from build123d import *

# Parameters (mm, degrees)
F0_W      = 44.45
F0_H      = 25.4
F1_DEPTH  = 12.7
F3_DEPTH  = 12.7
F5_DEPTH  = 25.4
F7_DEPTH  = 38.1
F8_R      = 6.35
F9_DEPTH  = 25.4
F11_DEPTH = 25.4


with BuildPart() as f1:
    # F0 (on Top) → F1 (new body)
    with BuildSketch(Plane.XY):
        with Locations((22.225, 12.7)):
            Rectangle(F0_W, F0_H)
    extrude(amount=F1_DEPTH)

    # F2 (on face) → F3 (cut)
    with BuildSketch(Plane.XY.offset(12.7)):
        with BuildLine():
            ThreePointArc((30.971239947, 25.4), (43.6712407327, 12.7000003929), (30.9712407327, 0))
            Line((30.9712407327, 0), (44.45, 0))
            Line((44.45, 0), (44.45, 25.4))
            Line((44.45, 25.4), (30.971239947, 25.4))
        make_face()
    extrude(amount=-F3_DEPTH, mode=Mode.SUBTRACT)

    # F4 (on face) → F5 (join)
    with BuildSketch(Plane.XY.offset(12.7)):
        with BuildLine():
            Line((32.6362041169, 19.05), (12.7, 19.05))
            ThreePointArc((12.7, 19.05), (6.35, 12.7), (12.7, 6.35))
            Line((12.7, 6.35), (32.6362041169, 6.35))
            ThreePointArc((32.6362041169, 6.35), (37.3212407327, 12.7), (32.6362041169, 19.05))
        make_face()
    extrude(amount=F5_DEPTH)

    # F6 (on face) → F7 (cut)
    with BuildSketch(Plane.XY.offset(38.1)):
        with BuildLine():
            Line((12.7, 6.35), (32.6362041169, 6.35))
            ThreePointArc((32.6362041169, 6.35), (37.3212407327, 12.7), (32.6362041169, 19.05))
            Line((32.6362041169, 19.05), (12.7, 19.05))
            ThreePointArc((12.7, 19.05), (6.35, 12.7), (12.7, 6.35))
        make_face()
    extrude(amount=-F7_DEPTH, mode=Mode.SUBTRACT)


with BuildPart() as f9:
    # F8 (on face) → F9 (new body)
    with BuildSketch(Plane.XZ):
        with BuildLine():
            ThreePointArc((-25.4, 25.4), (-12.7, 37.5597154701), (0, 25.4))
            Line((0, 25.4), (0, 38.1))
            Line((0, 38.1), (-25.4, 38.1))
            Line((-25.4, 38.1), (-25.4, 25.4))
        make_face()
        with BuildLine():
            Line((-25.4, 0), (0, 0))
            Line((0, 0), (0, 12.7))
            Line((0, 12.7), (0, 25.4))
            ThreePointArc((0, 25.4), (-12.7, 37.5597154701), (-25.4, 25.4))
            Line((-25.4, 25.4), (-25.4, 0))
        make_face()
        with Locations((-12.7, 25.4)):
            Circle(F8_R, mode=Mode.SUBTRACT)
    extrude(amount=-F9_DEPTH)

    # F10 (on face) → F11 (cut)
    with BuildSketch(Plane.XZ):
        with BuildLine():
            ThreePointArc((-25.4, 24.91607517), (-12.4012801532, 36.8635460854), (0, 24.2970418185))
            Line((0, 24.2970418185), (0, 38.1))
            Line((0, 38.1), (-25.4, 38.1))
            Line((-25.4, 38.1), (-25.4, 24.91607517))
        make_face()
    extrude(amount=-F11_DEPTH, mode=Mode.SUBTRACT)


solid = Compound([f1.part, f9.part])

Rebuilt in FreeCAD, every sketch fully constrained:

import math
import FreeCAD as App
import Part
import Sketcher
Q = App.Units.Quantity


def add_polygon(sketch, points):
    """Adds a closed chain of lines whose ends are joined by coincident constraints."""
    first, n = sketch.GeometryCount, len(points)
    for a, b in zip(points, points[1:] + points[:1]):
        sketch.addGeometry(Part.LineSegment(App.Vector(*a, 0), App.Vector(*b, 0)), False)
    for i in range(n):
        sketch.addConstraint(Sketcher.Constraint("Coincident", first + i, 2, first + (i + 1) % n, 1))

doc = App.newDocument("Part")
params = doc.addObject("Spreadsheet::Sheet", "Params")
for row, (alias, value) in enumerate([
    ("sketch1_height", "1 in"),
    ("sketch1_width", "1.75 in"),
    ("pad1_length", "0.5 in"),
    ("sketch2_radius", "0.5 in"),
    ("pocket1_length", "0.5 in"),
    ("sketch3_radius", "0.25 in"),
    ("pad2_length", "1 in"),
    ("sketch4_radius", "0.25 in"),
    ("pocket2_length", "1.5 in"),
    ("sketch5_diameter", "0.5 in"),
    ("sketch5_width", "1 in"),
    ("sketch5_height", "1.5 in"),
    ("pad3_length", "1 in"),
    ("sketch6_width", "1 in"),
    ("pocket3_length", "1 in"),
], start=1):
    params.set(f"A{row}", alias)
    params.set(f"B{row}", "=" + value)
    params.setAlias(f"B{row}", alias)

body = doc.addObject("PartDesign::Body", "Body")

# Sketch on XY plane
sketch1 = body.newObject("Sketcher::SketchObject", "Sketch")
sketch1.AttachmentSupport = (doc.getObject("XY_Plane"), [""])
sketch1.MapMode = "FlatFace"
add_polygon(sketch1, [(0, 25), (0, 0), (44, 0), (44, 25)])  # lines 0-3
sketch1.addConstraint(Sketcher.Constraint("Vertical", 0))
sketch1.addConstraint(Sketcher.Constraint("Horizontal", 1))
sketch1.addConstraint(Sketcher.Constraint("Vertical", 2))
sketch1.addConstraint(Sketcher.Constraint("Horizontal", 3))
sketch1.addConstraint(Sketcher.Constraint("Coincident", 0, 2, -1, 1))
sketch1.addConstraint(Sketcher.Constraint("DistanceY", 0, 2, 0, 1, Q("1 in")))
sketch1.addConstraint(Sketcher.Constraint("DistanceX", 1, 1, 1, 2, Q("1.75 in")))
sketch1.setExpression("Constraints[9]", "Params.sketch1_height")
sketch1.setExpression("Constraints[10]", "Params.sketch1_width")
pad1 = body.newObject("PartDesign::Pad", "Pad")
pad1.Profile = sketch1
pad1.setExpression("Length", "Params.pad1_length")

# Sketch on XY plane
sketch2 = body.newObject("Sketcher::SketchObject", "Sketch001")
sketch2.AttachmentSupport = (doc.getObject("XY_Plane"), [""])
sketch2.MapMode = "FlatFace"
sketch2.AttachmentOffset = App.Placement(App.Vector(0, 0, 0.5 * 25.4), App.Rotation())
sketch2.addGeometry(Part.ArcOfCircle(Part.Circle(App.Vector(31, 13, 0), App.Vector(0, 0, 1), 13), math.radians(-90), math.radians(90)), False)
sketch2.addGeometry(Part.LineSegment(App.Vector(31, 0, 0), App.Vector(44, 0, 0)), False)
sketch2.addGeometry(Part.LineSegment(App.Vector(44, 0, 0), App.Vector(44, 25, 0)), False)
sketch2.addGeometry(Part.LineSegment(App.Vector(44, 25, 0), App.Vector(31, 25, 0)), False)
sketch2.addConstraint(Sketcher.Constraint("Tangent", 0, 1, 1, 1))
sketch2.addConstraint(Sketcher.Constraint("Coincident", 1, 2, 2, 1))
sketch2.addConstraint(Sketcher.Constraint("Coincident", 2, 2, 3, 1))
sketch2.addConstraint(Sketcher.Constraint("Tangent", 3, 2, 0, 2))
sketch2.addConstraint(Sketcher.Constraint("Horizontal", 1))
sketch2.addConstraint(Sketcher.Constraint("Vertical", 2))
sketch2.addConstraint(Sketcher.Constraint("Horizontal", 3))
sketch2.addConstraint(Sketcher.Constraint("PointOnObject", 0, 1, -1))
sketch2.addConstraint(Sketcher.Constraint("Radius", 0, Q("0.5 in")))
sketch2.addConstraint(Sketcher.Constraint("DistanceX", -1, 1, 1, 2, Q("1.75 in")))
sketch2.addConstraint(Sketcher.Constraint("DistanceX", 1, 1, 1, 2, 13.478759))
sketch2.setExpression("Constraints[8]", "Params.sketch2_radius")
pocket1 = body.newObject("PartDesign::Pocket", "Pocket")
pocket1.Profile = sketch2
pocket1.setExpression("Length", "Params.pocket1_length")

# Sketch on XY plane
sketch3 = body.newObject("Sketcher::SketchObject", "Sketch002")
sketch3.AttachmentSupport = (doc.getObject("XY_Plane"), [""])
sketch3.MapMode = "FlatFace"
sketch3.AttachmentOffset = App.Placement(App.Vector(0, 0, 0.5 * 25.4), App.Rotation())
sketch3.addGeometry(Part.LineSegment(App.Vector(33, 19, 0), App.Vector(13, 19, 0)), False)
sketch3.addGeometry(Part.ArcOfCircle(Part.Circle(App.Vector(13, 13, 0), App.Vector(0, 0, 1), 6), math.radians(90), math.radians(270)), False)
sketch3.addGeometry(Part.LineSegment(App.Vector(13, 6, 0), App.Vector(33, 6, 0)), False)
sketch3.addGeometry(Part.ArcOfCircle(Part.Circle(App.Vector(31, 13, 0), App.Vector(0, 0, 1), 7), math.radians(-73), math.radians(73)), False)
sketch3.addConstraint(Sketcher.Constraint("Tangent", 0, 2, 1, 1))
sketch3.addConstraint(Sketcher.Constraint("Tangent", 1, 2, 2, 1))
sketch3.addConstraint(Sketcher.Constraint("Coincident", 2, 2, 3, 1))
sketch3.addConstraint(Sketcher.Constraint("Coincident", 3, 2, 0, 1))
sketch3.addConstraint(Sketcher.Constraint("Horizontal", 0))
sketch3.addConstraint(Sketcher.Constraint("Horizontal", 2))
sketch3.addConstraint(Sketcher.Constraint("Horizontal", 1, 3, 3, 3))
sketch3.addConstraint(Sketcher.Constraint("Radius", 1, Q("0.25 in")))
sketch3.addConstraint(Sketcher.Constraint("DistanceX", -1, 1, 1, 3, Q("0.5 in")))
sketch3.addConstraint(Sketcher.Constraint("DistanceY", -1, 1, 1, 3, Q("0.5 in")))
sketch3.addConstraint(Sketcher.Constraint("Radius", 3, 6.645846))
sketch3.addConstraint(Sketcher.Constraint("DistanceX", 0, 2, 0, 1, 19.936204))
sketch3.setExpression("Constraints[7]", "Params.sketch3_radius")
pad2 = body.newObject("PartDesign::Pad", "Pad001")
pad2.Profile = sketch3
pad2.setExpression("Length", "Params.pad2_length")

# Sketch on XY plane
sketch4 = body.newObject("Sketcher::SketchObject", "Sketch003")
sketch4.AttachmentSupport = (doc.getObject("XY_Plane"), [""])
sketch4.MapMode = "FlatFace"
sketch4.AttachmentOffset = App.Placement(App.Vector(0, 0, 1.5 * 25.4), App.Rotation())
sketch4.addGeometry(Part.LineSegment(App.Vector(13, 6, 0), App.Vector(33, 6, 0)), False)
sketch4.addGeometry(Part.ArcOfCircle(Part.Circle(App.Vector(31, 13, 0), App.Vector(0, 0, 1), 7), math.radians(-73), math.radians(73)), False)
sketch4.addGeometry(Part.LineSegment(App.Vector(33, 19, 0), App.Vector(13, 19, 0)), False)
sketch4.addGeometry(Part.ArcOfCircle(Part.Circle(App.Vector(13, 13, 0), App.Vector(0, 0, 1), 6), math.radians(90), math.radians(270)), False)
sketch4.addConstraint(Sketcher.Constraint("Coincident", 0, 2, 1, 1))
sketch4.addConstraint(Sketcher.Constraint("Coincident", 1, 2, 2, 1))
sketch4.addConstraint(Sketcher.Constraint("Tangent", 2, 2, 3, 1))
sketch4.addConstraint(Sketcher.Constraint("Tangent", 3, 2, 0, 1))
sketch4.addConstraint(Sketcher.Constraint("Horizontal", 0))
sketch4.addConstraint(Sketcher.Constraint("Horizontal", 2))
sketch4.addConstraint(Sketcher.Constraint("Horizontal", 1, 3, 3, 3))
sketch4.addConstraint(Sketcher.Constraint("Radius", 3, Q("0.25 in")))
sketch4.addConstraint(Sketcher.Constraint("DistanceY", -1, 1, 1, 3, Q("0.5 in")))
sketch4.addConstraint(Sketcher.Constraint("DistanceX", -1, 1, 3, 3, Q("0.5 in")))
sketch4.addConstraint(Sketcher.Constraint("Radius", 1, 6.645846))
sketch4.addConstraint(Sketcher.Constraint("DistanceX", 0, 1, 0, 2, 19.936204))
sketch4.setExpression("Constraints[7]", "Params.sketch4_radius")
pocket2 = body.newObject("PartDesign::Pocket", "Pocket001")
pocket2.Profile = sketch4
pocket2.setExpression("Length", "Params.pocket2_length")
body2 = doc.addObject("PartDesign::Body", "Body001")

# Sketch on XZ plane
sketch5 = body2.newObject("Sketcher::SketchObject", "Sketch004")
sketch5.AttachmentSupport = (doc.getObject("XZ_Plane001"), [""])
sketch5.MapMode = "FlatFace"
add_polygon(sketch5, [(0, 38), (-25, 38), (-25, 0), (0, 0)])  # lines 0-3
sketch5.addGeometry(Part.Circle(App.Vector(-13, 25, 0), App.Vector(0, 0, 1), 6), False)  # 4
sketch5.addConstraint(Sketcher.Constraint("Horizontal", 0))
sketch5.addConstraint(Sketcher.Constraint("Vertical", 1))
sketch5.addConstraint(Sketcher.Constraint("Horizontal", 2))
sketch5.addConstraint(Sketcher.Constraint("Vertical", 3))
sketch5.addConstraint(Sketcher.Constraint("Coincident", 2, 2, -1, 1))
sketch5.addConstraint(Sketcher.Constraint("Diameter", 4, Q("0.5 in")))
sketch5.addConstraint(Sketcher.Constraint("DistanceX", 0, 2, 0, 1, Q("1 in")))
sketch5.addConstraint(Sketcher.Constraint("DistanceY", 1, 2, 1, 1, Q("1.5 in")))
sketch5.addConstraint(Sketcher.Constraint("DistanceY", -1, 1, 4, 3, Q("1 in")))
sketch5.addConstraint(Sketcher.Constraint("DistanceX", 4, 3, -1, 1, Q("0.5 in")))
sketch5.setExpression("Constraints[9]", "Params.sketch5_diameter")
sketch5.setExpression("Constraints[10]", "Params.sketch5_width")
sketch5.setExpression("Constraints[11]", "Params.sketch5_height")
pad3 = body2.newObject("PartDesign::Pad", "Pad002")
pad3.Profile = sketch5
pad3.setExpression("Length", "Params.pad3_length")
pad3.Reversed = True

# Sketch on XZ plane
sketch6 = body2.newObject("Sketcher::SketchObject", "Sketch005")
sketch6.AttachmentSupport = (doc.getObject("XZ_Plane001"), [""])
sketch6.MapMode = "FlatFace"
sketch6.addGeometry(Part.ArcOfCircle(Part.Circle(App.Vector(-13, 24, 0), App.Vector(0, 0, 1), 13), math.radians(1), math.radians(177)), False)
sketch6.addGeometry(Part.LineSegment(App.Vector(0, 24, 0), App.Vector(0, 38, 0)), False)
sketch6.addGeometry(Part.LineSegment(App.Vector(0, 38, 0), App.Vector(-25, 38, 0)), False)
sketch6.addGeometry(Part.LineSegment(App.Vector(-25, 38, 0), App.Vector(-25, 25, 0)), False)
sketch6.addConstraint(Sketcher.Constraint("Coincident", 0, 1, 1, 1))
sketch6.addConstraint(Sketcher.Constraint("Coincident", 1, 2, 2, 1))
sketch6.addConstraint(Sketcher.Constraint("Coincident", 2, 2, 3, 1))
sketch6.addConstraint(Sketcher.Constraint("Coincident", 3, 2, 0, 2))
sketch6.addConstraint(Sketcher.Constraint("Vertical", 1))
sketch6.addConstraint(Sketcher.Constraint("Horizontal", 2))
sketch6.addConstraint(Sketcher.Constraint("Vertical", 3))
sketch6.addConstraint(Sketcher.Constraint("PointOnObject", 0, 1, -2))
sketch6.addConstraint(Sketcher.Constraint("DistanceX", 2, 2, 2, 1, Q("1 in")))
sketch6.addConstraint(Sketcher.Constraint("DistanceY", -1, 1, 1, 2, Q("1.5 in")))
sketch6.addConstraint(Sketcher.Constraint("Radius", 0, 12.71178))
sketch6.addConstraint(Sketcher.Constraint("DistanceY", 1, 1, 1, 2, 13.802958))
sketch6.addConstraint(Sketcher.Constraint("DistanceY", 0, 3, 0, 1, 0.141502))
sketch6.setExpression("Constraints[8]", "Params.sketch6_width")
pocket3 = body2.newObject("PartDesign::Pocket", "Pocket002")
pocket3.Profile = sketch6
pocket3.setExpression("Length", "Params.pocket3_length")

doc.recompute()
